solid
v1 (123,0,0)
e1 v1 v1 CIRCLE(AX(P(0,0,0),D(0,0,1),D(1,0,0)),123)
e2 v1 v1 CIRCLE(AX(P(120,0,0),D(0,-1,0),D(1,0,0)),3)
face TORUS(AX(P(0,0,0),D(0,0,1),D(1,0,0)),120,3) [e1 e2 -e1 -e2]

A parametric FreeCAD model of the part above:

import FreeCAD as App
import Part
import Sketcher
from FreeCAD import Vector

doc = App.newDocument("Part")
body = doc.addObject("PartDesign::Body", "Body")

sketch1 = body.newObject("Sketcher::SketchObject", "Sketch")
sketch1.AttachmentSupport = (doc.getObject("XZ_Plane"), [""])
sketch1.MapMode = "FlatFace"
sketch1.addGeometry(Part.Circle(Vector(120, 0, 0), Vector(0, 0, 1), 3), False)
sketch1.addConstraint(Sketcher.Constraint("PointOnObject", 0, 3, -1))
sketch1.addConstraint(Sketcher.Constraint("Diameter", 0, 6.0))
sketch1.addConstraint(Sketcher.Constraint("DistanceX", -1, 1, 0, 3, 120.0))
revolution = body.newObject("PartDesign::Revolution", "Revolution")
revolution.Profile = sketch1
revolution.ReferenceAxis = (sketch1, ["V_Axis"])
revolution.Angle = 360

doc.recompute()
